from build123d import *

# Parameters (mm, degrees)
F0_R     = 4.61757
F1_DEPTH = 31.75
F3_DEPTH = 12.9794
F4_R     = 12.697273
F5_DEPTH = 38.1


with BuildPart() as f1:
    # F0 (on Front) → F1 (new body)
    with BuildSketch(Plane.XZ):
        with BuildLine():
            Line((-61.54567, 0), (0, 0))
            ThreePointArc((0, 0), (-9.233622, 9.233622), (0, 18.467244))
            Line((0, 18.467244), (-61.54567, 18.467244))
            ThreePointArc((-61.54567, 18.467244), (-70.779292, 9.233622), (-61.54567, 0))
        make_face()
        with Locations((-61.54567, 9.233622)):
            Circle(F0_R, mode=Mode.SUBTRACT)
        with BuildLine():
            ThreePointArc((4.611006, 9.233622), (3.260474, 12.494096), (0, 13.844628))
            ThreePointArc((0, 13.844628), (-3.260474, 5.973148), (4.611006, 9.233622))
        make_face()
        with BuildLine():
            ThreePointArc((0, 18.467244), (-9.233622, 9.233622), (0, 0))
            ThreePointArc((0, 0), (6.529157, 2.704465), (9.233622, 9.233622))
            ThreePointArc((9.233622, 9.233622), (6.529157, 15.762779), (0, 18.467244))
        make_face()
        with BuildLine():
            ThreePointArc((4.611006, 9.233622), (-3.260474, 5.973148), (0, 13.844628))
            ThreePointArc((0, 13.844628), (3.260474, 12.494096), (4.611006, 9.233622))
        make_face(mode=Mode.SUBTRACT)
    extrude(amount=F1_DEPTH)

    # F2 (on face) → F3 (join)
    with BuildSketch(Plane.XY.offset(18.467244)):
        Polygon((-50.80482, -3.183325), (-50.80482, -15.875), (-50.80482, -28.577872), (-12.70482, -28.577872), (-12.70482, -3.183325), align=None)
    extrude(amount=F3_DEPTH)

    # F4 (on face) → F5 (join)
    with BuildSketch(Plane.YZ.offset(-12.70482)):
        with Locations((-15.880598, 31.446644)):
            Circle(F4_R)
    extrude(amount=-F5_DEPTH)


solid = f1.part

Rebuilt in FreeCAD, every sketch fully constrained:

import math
import FreeCAD as App
import Part
import Sketcher
Q = App.Units.Quantity

doc = App.newDocument("Part")
body = doc.addObject("PartDesign::Body", "Body")

# Sketch on XZ plane
sketch1 = doc.addObject("Sketcher::SketchObject", "Sketch")
body.addObject(sketch1)
sketch1.AttachmentSupport = (doc.XZ_Plane, [""])
sketch1.MapMode = "FlatFace"
sketch1.addGeometry([
    Part.LineSegment(App.Vector(-61.54567, 0, 0), App.Vector(0, 0, 0)),  # 0
    Part.ArcOfCircle(Part.Circle(App.Vector(0.000001, 9.233621, 0), App.Vector(0, 0, 1), 9.233621), math.radians(-90.000006), math.radians(0.000006)),  # 1
    Part.ArcOfCircle(Part.Circle(App.Vector(0.000001, 9.233623, 0), App.Vector(0, 0, 1), 9.233621), math.radians(-0.000006), math.radians(90.000006)),  # 2
    Part.LineSegment(App.Vector(0, 18.467244, 0), App.Vector(-61.54567, 18.467244, 0)),  # 3
    Part.ArcOfCircle(Part.Circle(App.Vector(-61.54567, 9.233622, 0), App.Vector(0, 0, 1), 9.233622), math.radians(90), math.radians(270)),  # 4
    Part.ArcOfCircle(Part.Circle(App.Vector(0.000001, 9.233623, 0), App.Vector(0, 0, 1), 4.611005), math.radians(-0.000017), math.radians(90.000017)),  # 5
    Part.ArcOfCircle(Part.Circle(App.Vector(0, 9.233622, 0), App.Vector(0, 0, 1), 4.611006), math.radians(89.999997), math.radians(360.000003)),  # 6
    Part.Circle(App.Vector(-61.54567, 9.233622, 0), App.Vector(0, 0, 1), 4.61757),  # 7
], False)
sketch1.addConstraint([
    Sketcher.Constraint("Tangent", 0, 2, 1, 1),
    Sketcher.Constraint("Tangent", 1, 2, 2, 1),
    Sketcher.Constraint("Tangent", 2, 2, 3, 1),
    Sketcher.Constraint("Tangent", 3, 2, 4, 1),
    Sketcher.Constraint("Tangent", 4, 2, 0, 1),
    Sketcher.Constraint("Tangent", 5, 1, 6, 2),
    Sketcher.Constraint("Coincident", 6, 1, 5, 2),
    Sketcher.Constraint("Horizontal", 0),
    Sketcher.Constraint("Horizontal", 3),
    Sketcher.Constraint("Coincident", 0, 2, -1, 1),
    Sketcher.Constraint("Coincident", 5, 3, 1, 3),
    Sketcher.Constraint("Coincident", 7, 3, 4, 3),
    Sketcher.Constraint("Equal", 1, 2),
    Sketcher.Constraint("PointOnObject", 6, 1, -2),
    Sketcher.Constraint("Horizontal", 7, 3, 1, 2),
    Sketcher.Constraint("Horizontal", 1, 2, 5, 1),
    Sketcher.Constraint("Diameter", 7, 9.23514),
    Sketcher.Constraint("Radius", 1, 9.233621),
    Sketcher.Constraint("Radius", 5, 4.611005),
    Sketcher.Constraint("DistanceX", 0, 1, 0, 2, 61.54567),
])
pad1 = doc.addObject("PartDesign::Pad", "Pad")
body.addObject(pad1)
pad1.Profile = sketch1
pad1.Length = Q("1.25 in")

# Sketch on XY plane
sketch2 = doc.addObject("Sketcher::SketchObject", "Sketch001")
body.addObject(sketch2)
sketch2.AttachmentSupport = (doc.XY_Plane, [""])
sketch2.MapMode = "FlatFace"
sketch2.AttachmentOffset = App.Placement(App.Vector(0, 0, 18.467244), App.Rotation())
sketch2.addGeometry([
    Part.LineSegment(App.Vector(-50.80482, -3.183325, 0), App.Vector(-50.80482, -28.577872, 0)),
    Part.LineSegment(App.Vector(-50.80482, -28.577872, 0), App.Vector(-12.70482, -28.577872, 0)),
    Part.LineSegment(App.Vector(-12.70482, -28.577872, 0), App.Vector(-12.70482, -3.183325, 0)),
    Part.LineSegment(App.Vector(-12.70482, -3.183325, 0), App.Vector(-50.80482, -3.183325, 0)),
], False)
sketch2.addConstraint([
    Sketcher.Constraint("Coincident", 0, 2, 1, 1),
    Sketcher.Constraint("Coincident", 1, 2, 2, 1),
    Sketcher.Constraint("Coincident", 2, 2, 3, 1),
    Sketcher.Constraint("Coincident", 3, 2, 0, 1),
    Sketcher.Constraint("Vertical", 0),
    Sketcher.Constraint("Horizontal", 1),
    Sketcher.Constraint("Vertical", 2),
    Sketcher.Constraint("Horizontal", 3),
    Sketcher.Constraint("DistanceX", 1, 1, 1, 2, Q("1.5 in")),
    Sketcher.Constraint("DistanceY", 0, 2, 0, 1, 25.394547),
    Sketcher.Constraint("DistanceX", 0, 2, -1, 1, 50.80482),
    Sketcher.Constraint("DistanceY", 0, 2, -1, 1, 28.577872),
])
pad2 = doc.addObject("PartDesign::Pad", "Pad001")
body.addObject(pad2)
pad2.Profile = sketch2
pad2.Length = Q("0.511 in")

# Sketch on YZ plane
sketch3 = doc.addObject("Sketcher::SketchObject", "Sketch002")
body.addObject(sketch3)
sketch3.AttachmentSupport = (doc.YZ_Plane, [""])
sketch3.MapMode = "FlatFace"
sketch3.AttachmentOffset = App.Placement(App.Vector(0, 0, -12.70482), App.Rotation())
sketch3.addGeometry(Part.Circle(App.Vector(-15.880598, 31.446644, 0), App.Vector(0, 0, 1), 12.697273), False)
sketch3.addConstraint([
    Sketcher.Constraint("Diameter", 0, 25.394546),
    Sketcher.Constraint("DistanceX", 0, 3, -1, 1, 15.880598),
    Sketcher.Constraint("DistanceY", -1, 1, 0, 3, 31.446644),
])
pad3 = doc.addObject("PartDesign::Pad", "Pad002")
body.addObject(pad3)
pad3.Profile = sketch3
pad3.Length = Q("1.5 in")
pad3.Reversed = True

doc.recompute()
